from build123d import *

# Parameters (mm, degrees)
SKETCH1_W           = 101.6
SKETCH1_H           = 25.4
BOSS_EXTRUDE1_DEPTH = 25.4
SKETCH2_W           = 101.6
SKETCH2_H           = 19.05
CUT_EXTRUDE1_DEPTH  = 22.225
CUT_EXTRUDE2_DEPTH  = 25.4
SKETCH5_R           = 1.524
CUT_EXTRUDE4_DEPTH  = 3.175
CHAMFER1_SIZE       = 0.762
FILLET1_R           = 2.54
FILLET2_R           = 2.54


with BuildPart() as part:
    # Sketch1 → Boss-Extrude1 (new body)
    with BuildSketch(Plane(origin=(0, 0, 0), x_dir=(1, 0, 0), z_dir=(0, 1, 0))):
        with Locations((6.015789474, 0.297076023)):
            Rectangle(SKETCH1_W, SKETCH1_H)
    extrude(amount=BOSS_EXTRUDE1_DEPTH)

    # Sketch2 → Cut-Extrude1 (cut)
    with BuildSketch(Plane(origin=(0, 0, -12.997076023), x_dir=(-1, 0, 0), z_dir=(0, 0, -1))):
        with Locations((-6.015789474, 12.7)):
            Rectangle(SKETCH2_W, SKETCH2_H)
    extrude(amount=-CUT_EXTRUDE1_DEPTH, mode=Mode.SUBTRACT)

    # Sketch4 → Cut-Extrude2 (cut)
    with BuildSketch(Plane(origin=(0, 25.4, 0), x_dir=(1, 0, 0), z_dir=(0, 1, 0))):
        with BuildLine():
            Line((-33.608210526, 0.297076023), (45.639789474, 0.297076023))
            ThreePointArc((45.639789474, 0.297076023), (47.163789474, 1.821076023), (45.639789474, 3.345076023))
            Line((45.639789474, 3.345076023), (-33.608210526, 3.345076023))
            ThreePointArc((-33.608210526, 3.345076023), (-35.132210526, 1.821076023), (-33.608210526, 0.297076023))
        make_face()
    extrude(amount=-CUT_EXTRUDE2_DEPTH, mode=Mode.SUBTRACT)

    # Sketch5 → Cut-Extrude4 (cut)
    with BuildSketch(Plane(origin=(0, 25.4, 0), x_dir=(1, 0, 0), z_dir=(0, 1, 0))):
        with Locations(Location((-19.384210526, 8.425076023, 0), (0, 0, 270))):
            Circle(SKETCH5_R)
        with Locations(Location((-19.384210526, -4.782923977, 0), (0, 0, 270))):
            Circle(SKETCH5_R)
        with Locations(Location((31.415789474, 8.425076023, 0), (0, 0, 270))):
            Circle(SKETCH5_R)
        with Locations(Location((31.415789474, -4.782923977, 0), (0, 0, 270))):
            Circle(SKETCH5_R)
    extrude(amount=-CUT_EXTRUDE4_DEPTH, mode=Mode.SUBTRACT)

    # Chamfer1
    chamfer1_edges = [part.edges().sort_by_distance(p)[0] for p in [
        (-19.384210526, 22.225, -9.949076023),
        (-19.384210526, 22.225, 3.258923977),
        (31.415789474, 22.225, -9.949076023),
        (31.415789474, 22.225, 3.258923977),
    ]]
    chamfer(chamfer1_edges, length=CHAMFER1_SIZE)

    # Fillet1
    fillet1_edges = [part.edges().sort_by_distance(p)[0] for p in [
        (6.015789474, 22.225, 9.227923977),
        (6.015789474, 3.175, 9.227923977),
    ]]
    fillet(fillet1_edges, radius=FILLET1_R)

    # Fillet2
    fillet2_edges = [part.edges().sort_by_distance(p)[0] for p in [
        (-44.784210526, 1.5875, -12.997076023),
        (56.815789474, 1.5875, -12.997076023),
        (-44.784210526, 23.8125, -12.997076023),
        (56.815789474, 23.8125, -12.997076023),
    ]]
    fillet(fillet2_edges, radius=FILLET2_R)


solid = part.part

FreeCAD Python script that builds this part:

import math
import FreeCAD as App
import Part
import Sketcher
from FreeCAD import Vector
Q = App.Units.Quantity


def edges_at(feature, points):
    """Names of the edges that pass closest to the given points."""
    edges = feature.Shape.Edges
    near = lambda p: min(range(len(edges)), key=lambda i: edges[i].distToShape(Part.Vertex(*p))[0])
    return sorted({f"Edge{near(p) + 1}" for p in points})


def add_polygon(sketch, points):
    """Adds a closed chain of lines whose ends are joined by coincident constraints."""
    first, n = sketch.GeometryCount, len(points)
    for a, b in zip(points, points[1:] + points[:1]):
        sketch.addGeometry(Part.LineSegment(App.Vector(*a, 0), App.Vector(*b, 0)), False)
    for i in range(n):
        sketch.addConstraint(Sketcher.Constraint("Coincident", first + i, 2, first + (i + 1) % n, 1))

doc = App.newDocument("Part")
body = doc.addObject("PartDesign::Body", "Body")

sketch1 = body.newObject("Sketcher::SketchObject", "Sketch")
sketch1.AttachmentSupport = (doc.getObject("XZ_Plane"), [""])
sketch1.MapMode = "FlatFace"
add_polygon(sketch1, [(-45, -13), (-45, 12), (57, 12), (57, -13)])
sketch1.addConstraint(Sketcher.Constraint("Vertical", 0))
sketch1.addConstraint(Sketcher.Constraint("Horizontal", 1))
sketch1.addConstraint(Sketcher.Constraint("Vertical", 2))
sketch1.addConstraint(Sketcher.Constraint("Horizontal", 3))
sketch1.addConstraint(Sketcher.Constraint("DistanceX", 1, 1, 1, 2, Q("4 in")))
sketch1.addConstraint(Sketcher.Constraint("DistanceY", 0, 1, 0, 2, Q("1 in")))
sketch1.addConstraint(Sketcher.Constraint("DistanceX", 0, 2, -1, 1, Q("44.784211 mm")))
sketch1.addConstraint(Sketcher.Constraint("DistanceY", -1, 1, 0, 2, Q("12.402924 mm")))
pad1 = body.newObject("PartDesign::Pad", "Pad")
pad1.Profile = sketch1
pad1.Length = Q("1 in")
pad1.Reversed = True

sketch2 = body.newObject("Sketcher::SketchObject", "Sketch001")
sketch2.AttachmentSupport = (doc.getObject("XY_Plane"), [""])
sketch2.MapMode = "FlatFace"
sketch2.AttachmentOffset = App.Placement(Vector(0, 0, -12.997076), App.Rotation())
add_polygon(sketch2, [(57, 22), (57, 3), (-45, 3), (-45, 22)])
sketch2.addConstraint(Sketcher.Constraint("Vertical", 0))
sketch2.addConstraint(Sketcher.Constraint("Horizontal", 1))
sketch2.addConstraint(Sketcher.Constraint("Vertical", 2))
sketch2.addConstraint(Sketcher.Constraint("Horizontal", 3))
sketch2.addConstraint(Sketcher.Constraint("DistanceX", 1, 2, 1, 1, Q("4 in")))
sketch2.addConstraint(Sketcher.Constraint("DistanceY", 0, 2, 0, 1, Q("0.75 in")))
sketch2.addConstraint(Sketcher.Constraint("DistanceY", -1, 1, 0, 2, Q("0.125 in")))
sketch2.addConstraint(Sketcher.Constraint("DistanceX", -1, 1, 0, 2, Q("56.815789 mm")))
pocket1 = body.newObject("PartDesign::Pocket", "Pocket")
pocket1.Profile = sketch2
pocket1.Length = Q("0.875 in")
pocket1.Reversed = True

sketch3 = body.newObject("Sketcher::SketchObject", "Sketch002")
sketch3.AttachmentSupport = (doc.getObject("XZ_Plane"), [""])
sketch3.MapMode = "FlatFace"
sketch3.AttachmentOffset = App.Placement(Vector(0, 0, -1 * 25.4), App.Rotation())
sketch3.addGeometry(Part.LineSegment(Vector(-33.6, -0.3, 0), Vector(45.6, -0.3, 0)), False)
sketch3.addGeometry(Part.ArcOfCircle(Part.Circle(Vector(45.6, -1.8, 0), Vector(0, 0, 1), 1.5), math.radians(-90), math.radians(90)), False)
sketch3.addGeometry(Part.LineSegment(Vector(45.6, -3.3, 0), Vector(-33.6, -3.3, 0)), False)
sketch3.addGeometry(Part.ArcOfCircle(Part.Circle(Vector(-33.6, -1.8, 0), Vector(0, 0, 1), 1.5), math.radians(90), math.radians(270)), False)
sketch3.addConstraint(Sketcher.Constraint("Tangent", 0, 2, 1, 2))
sketch3.addConstraint(Sketcher.Constraint("Tangent", 1, 1, 2, 1))
sketch3.addConstraint(Sketcher.Constraint("Tangent", 2, 2, 3, 2))
sketch3.addConstraint(Sketcher.Constraint("Tangent", 3, 1, 0, 1))
sketch3.addConstraint(Sketcher.Constraint("Horizontal", 0))
sketch3.addConstraint(Sketcher.Constraint("Horizontal", 2))
sketch3.addConstraint(Sketcher.Constraint("Radius", 1, Q("0.06 in")))
sketch3.addConstraint(Sketcher.Constraint("DistanceX", 0, 1, 0, 2, Q("3.12 in")))
sketch3.addConstraint(Sketcher.Constraint("DistanceX", -1, 1, 1, 3, Q("45.639789 mm")))
sketch3.addConstraint(Sketcher.Constraint("DistanceY", 1, 3, -1, 1, Q("1.821076 mm")))
pocket2 = body.newObject("PartDesign::Pocket", "Pocket001")
pocket2.Profile = sketch3
pocket2.Length = Q("1 in")
pocket2.Reversed = True

sketch4 = body.newObject("Sketcher::SketchObject", "Sketch003")
sketch4.AttachmentSupport = (doc.getObject("XZ_Plane"), [""])
sketch4.MapMode = "FlatFace"
sketch4.AttachmentOffset = App.Placement(Vector(0, 0, -1 * 25.4), App.Rotation())
sketch4.addGeometry(Part.Circle(Vector(-19.4, -8.4, 0), Vector(0, 0, 1), 1.5), False)
sketch4.addGeometry(Part.Circle(Vector(-19.4, 4.8, 0), Vector(0, 0, 1), 1.5), False)
sketch4.addGeometry(Part.Circle(Vector(31.4, -8.4, 0), Vector(0, 0, 1), 1.5), False)
sketch4.addGeometry(Part.Circle(Vector(31.4, 4.8, 0), Vector(0, 0, 1), 1.5), False)
sketch4.addConstraint(Sketcher.Constraint("Equal", 0, 1))
sketch4.addConstraint(Sketcher.Constraint("Equal", 1, 2))
sketch4.addConstraint(Sketcher.Constraint("Equal", 2, 3))
sketch4.addConstraint(Sketcher.Constraint("Horizontal", 0, 3, 2, 3))
sketch4.addConstraint(Sketcher.Constraint("Horizontal", 1, 3, 3, 3))
sketch4.addConstraint(Sketcher.Constraint("Vertical", 0, 3, 1, 3))
sketch4.addConstraint(Sketcher.Constraint("Vertical", 2, 3, 3, 3))
sketch4.addConstraint(Sketcher.Constraint("Diameter", 0, Q("0.12 in")))
sketch4.addConstraint(Sketcher.Constraint("DistanceX", 0, 3, 2, 3, Q("2 in")))
sketch4.addConstraint(Sketcher.Constraint("DistanceY", 0, 3, 1, 3, Q("0.52 in")))
sketch4.addConstraint(Sketcher.Constraint("DistanceX", 0, 3, -1, 1, Q("19.384211 mm")))
sketch4.addConstraint(Sketcher.Constraint("DistanceY", 0, 3, -1, 1, Q("8.425076 mm")))
pocket3 = body.newObject("PartDesign::Pocket", "Pocket002")
pocket3.Profile = sketch4
pocket3.Length = Q("0.125 in")
pocket3.Reversed = True
doc.recompute()

chamfer = body.newObject("PartDesign::Chamfer", "Chamfer")
chamfer.Base = (pocket3, edges_at(pocket3, [
    (-19.384, 22.225, -9.949),
    (-19.384, 22.225, 3.259),
    (31.416, 22.225, -9.949),
    (31.416, 22.225, 3.259),
]))
chamfer.Size = Q("0.03 in")
doc.recompute()

fillet = body.newObject("PartDesign::Fillet", "Fillet")
fillet.Base = (chamfer, edges_at(chamfer, [(6.016, 22.225, 9.228), (6.016, 3.175, 9.228)]))
fillet.Radius = Q("0.1 in")
doc.recompute()

fillet2 = body.newObject("PartDesign::Fillet", "Fillet001")
fillet2.Base = (fillet, edges_at(fillet, [
    (-44.784, 1.587, -12.997),
    (56.816, 1.587, -12.997),
    (-44.784, 23.812, -12.997),
    (56.816, 23.812, -12.997),
]))
fillet2.Radius = Q("0.1 in")

doc.recompute()
